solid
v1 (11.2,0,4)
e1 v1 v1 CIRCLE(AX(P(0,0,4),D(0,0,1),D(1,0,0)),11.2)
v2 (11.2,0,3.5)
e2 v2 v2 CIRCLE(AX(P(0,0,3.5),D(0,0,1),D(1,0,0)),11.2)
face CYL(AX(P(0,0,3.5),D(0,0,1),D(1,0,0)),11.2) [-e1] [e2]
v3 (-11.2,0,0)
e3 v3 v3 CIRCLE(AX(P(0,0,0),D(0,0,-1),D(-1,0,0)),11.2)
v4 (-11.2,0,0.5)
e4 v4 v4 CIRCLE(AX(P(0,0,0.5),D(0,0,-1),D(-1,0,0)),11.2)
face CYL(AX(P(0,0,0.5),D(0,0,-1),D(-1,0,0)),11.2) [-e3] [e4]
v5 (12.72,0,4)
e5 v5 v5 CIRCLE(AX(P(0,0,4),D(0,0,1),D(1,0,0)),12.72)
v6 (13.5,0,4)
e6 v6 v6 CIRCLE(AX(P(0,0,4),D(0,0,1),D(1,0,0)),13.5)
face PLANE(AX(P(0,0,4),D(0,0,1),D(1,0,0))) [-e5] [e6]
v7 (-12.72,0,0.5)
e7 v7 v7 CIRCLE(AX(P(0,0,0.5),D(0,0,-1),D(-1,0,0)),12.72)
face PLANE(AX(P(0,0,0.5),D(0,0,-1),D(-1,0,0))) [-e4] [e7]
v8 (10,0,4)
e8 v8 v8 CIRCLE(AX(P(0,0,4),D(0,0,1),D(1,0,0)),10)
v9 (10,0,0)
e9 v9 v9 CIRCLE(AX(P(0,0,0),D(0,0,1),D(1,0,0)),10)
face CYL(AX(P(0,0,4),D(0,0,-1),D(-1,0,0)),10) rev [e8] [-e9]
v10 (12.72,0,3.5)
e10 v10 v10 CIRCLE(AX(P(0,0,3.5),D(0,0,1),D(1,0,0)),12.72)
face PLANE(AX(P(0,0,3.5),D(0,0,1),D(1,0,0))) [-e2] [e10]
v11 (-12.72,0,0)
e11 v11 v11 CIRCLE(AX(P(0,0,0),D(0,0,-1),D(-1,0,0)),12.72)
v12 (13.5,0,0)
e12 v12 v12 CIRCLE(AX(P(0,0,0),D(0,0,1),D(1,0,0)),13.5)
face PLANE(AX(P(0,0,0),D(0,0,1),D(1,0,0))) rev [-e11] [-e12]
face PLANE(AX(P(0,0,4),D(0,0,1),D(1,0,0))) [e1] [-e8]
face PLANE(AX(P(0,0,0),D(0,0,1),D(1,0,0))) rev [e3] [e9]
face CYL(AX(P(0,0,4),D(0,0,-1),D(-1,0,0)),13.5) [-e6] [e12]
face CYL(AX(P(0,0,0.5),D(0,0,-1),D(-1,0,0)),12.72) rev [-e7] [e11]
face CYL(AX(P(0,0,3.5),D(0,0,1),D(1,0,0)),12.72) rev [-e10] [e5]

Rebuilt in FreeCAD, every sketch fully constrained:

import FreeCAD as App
import Part
import Sketcher

doc = App.newDocument("Part")
body = doc.addObject("PartDesign::Body", "Body")

sketch1 = doc.addObject("Sketcher::SketchObject", "Sketch")
body.addObject(sketch1)
sketch1.AttachmentSupport = (doc.XY_Plane, [""])
sketch1.MapMode = "FlatFace"
sketch1.addGeometry(Part.Circle(App.Vector(0, 0, 0), App.Vector(0, 0, 1), 13.5), False)
sketch1.addGeometry(Part.Circle(App.Vector(0, 0, 0), App.Vector(0, 0, 1), 10), False)
sketch1.addConstraint(Sketcher.Constraint("Coincident", 0, 3, -1, 1))
sketch1.addConstraint(Sketcher.Constraint("Coincident", 1, 3, -1, 1))
sketch1.addConstraint(Sketcher.Constraint("Diameter", 0, 27.0))
sketch1.addConstraint(Sketcher.Constraint("Diameter", 1, 20.0))
pad1 = doc.addObject("PartDesign::Pad", "Pad")
body.addObject(pad1)
pad1.Profile = sketch1
pad1.Length = 4

sketch2 = doc.addObject("Sketcher::SketchObject", "Sketch001")
body.addObject(sketch2)
sketch2.AttachmentSupport = (doc.XY_Plane, [""])
sketch2.MapMode = "FlatFace"
sketch2.AttachmentOffset = App.Placement(App.Vector(0, 0, 4), App.Rotation())
sketch2.addGeometry(Part.Circle(App.Vector(0, 0, 0), App.Vector(0, 0, 1), 12.72), False)
sketch2.addGeometry(Part.Circle(App.Vector(0, 0, 0), App.Vector(0, 0, 1), 11.2), False)
sketch2.addConstraint(Sketcher.Constraint("Coincident", 0, 3, -1, 1))
sketch2.addConstraint(Sketcher.Constraint("Coincident", 1, 3, -1, 1))
sketch2.addConstraint(Sketcher.Constraint("Diameter", 1, 22.4))
sketch2.addConstraint(Sketcher.Constraint("Diameter", 0, 25.44))
pocket1 = doc.addObject("PartDesign::Pocket", "Pocket")
body.addObject(pocket1)
pocket1.Profile = sketch2
pocket1.Length = 0.5

sketch3 = doc.addObject("Sketcher::SketchObject", "Sketch002")
body.addObject(sketch3)
sketch3.AttachmentSupport = (doc.XY_Plane, [""])
sketch3.MapMode = "FlatFace"
sketch3.addGeometry(Part.Circle(App.Vector(0, 0, 0), App.Vector(0, 0, 1), 12.72), False)
sketch3.addGeometry(Part.Circle(App.Vector(0, 0, 0), App.Vector(0, 0, 1), 11.2), False)
sketch3.addConstraint(Sketcher.Constraint("Coincident", 0, 3, -1, 1))
sketch3.addConstraint(Sketcher.Constraint("Coincident", 1, 3, -1, 1))
sketch3.addConstraint(Sketcher.Constraint("Diameter", 1, 22.4))
sketch3.addConstraint(Sketcher.Constraint("Diameter", 0, 25.44))
pocket2 = doc.addObject("PartDesign::Pocket", "Pocket001")
body.addObject(pocket2)
pocket2.Profile = sketch3
pocket2.Length = 0.5
pocket2.Reversed = True

doc.recompute()
